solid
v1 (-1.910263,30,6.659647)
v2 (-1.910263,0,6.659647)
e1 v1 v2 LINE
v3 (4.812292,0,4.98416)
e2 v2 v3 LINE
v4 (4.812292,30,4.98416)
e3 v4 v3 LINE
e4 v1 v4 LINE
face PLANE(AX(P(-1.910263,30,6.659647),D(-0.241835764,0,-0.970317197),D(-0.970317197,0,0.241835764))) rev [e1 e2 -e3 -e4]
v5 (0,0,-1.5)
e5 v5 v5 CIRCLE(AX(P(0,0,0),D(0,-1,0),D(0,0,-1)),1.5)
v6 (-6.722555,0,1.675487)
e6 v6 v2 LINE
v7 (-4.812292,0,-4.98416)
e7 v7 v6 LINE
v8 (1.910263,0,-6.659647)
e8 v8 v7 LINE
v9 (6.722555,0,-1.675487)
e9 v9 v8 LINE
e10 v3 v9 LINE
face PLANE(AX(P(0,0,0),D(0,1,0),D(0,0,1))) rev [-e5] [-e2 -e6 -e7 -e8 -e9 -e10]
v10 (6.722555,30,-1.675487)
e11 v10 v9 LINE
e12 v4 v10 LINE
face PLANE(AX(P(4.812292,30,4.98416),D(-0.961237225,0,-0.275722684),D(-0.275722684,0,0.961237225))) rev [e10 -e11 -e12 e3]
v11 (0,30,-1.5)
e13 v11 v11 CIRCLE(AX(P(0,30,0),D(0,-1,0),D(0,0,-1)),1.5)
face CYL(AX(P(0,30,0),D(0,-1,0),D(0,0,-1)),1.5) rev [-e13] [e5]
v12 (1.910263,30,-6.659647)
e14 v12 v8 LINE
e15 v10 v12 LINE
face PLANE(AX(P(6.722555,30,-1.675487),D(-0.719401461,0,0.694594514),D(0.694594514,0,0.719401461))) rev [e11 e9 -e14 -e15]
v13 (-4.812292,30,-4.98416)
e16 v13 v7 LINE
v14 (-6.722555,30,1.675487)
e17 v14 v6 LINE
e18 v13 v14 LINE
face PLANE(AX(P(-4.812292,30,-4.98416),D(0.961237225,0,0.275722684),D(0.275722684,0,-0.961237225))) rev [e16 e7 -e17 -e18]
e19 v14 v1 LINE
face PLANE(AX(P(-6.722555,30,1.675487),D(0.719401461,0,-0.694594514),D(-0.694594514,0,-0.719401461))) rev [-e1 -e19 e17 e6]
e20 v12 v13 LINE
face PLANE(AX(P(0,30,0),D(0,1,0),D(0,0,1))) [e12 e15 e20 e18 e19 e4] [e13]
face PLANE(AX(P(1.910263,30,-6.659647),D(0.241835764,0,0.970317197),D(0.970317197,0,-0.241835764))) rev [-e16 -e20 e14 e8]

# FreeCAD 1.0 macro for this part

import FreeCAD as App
import Part
import Sketcher
from FreeCAD import Vector

doc = App.newDocument("Part")
body = doc.addObject("PartDesign::Body", "Body")

# Sketch on XZ plane
sketch1 = body.newObject("Sketcher::SketchObject", "Sketch")
sketch1.AttachmentSupport = (doc.getObject("XZ_Plane"), [""])
sketch1.MapMode = "FlatFace"
sketch1.addGeometry([
    Part.LineSegment(Vector(4.812292, 4.98416, 0), Vector(6.722555, -1.675487, 0)),  # 0
    Part.LineSegment(Vector(6.722555, -1.675487, 0), Vector(1.910263, -6.659647, 0)),  # 1
    Part.LineSegment(Vector(1.910263, -6.659647, 0), Vector(-4.812292, -4.98416, 0)),  # 2
    Part.LineSegment(Vector(-4.812292, -4.98416, 0), Vector(-6.722555, 1.675487, 0)),  # 3
    Part.LineSegment(Vector(-6.722555, 1.675487, 0), Vector(-1.910263, 6.659647, 0)),  # 4
    Part.LineSegment(Vector(-1.910263, 6.659647, 0), Vector(4.812292, 4.98416, 0)),  # 5
], False)
sketch1.addConstraint([
    Sketcher.Constraint("Coincident", 0, 2, 1, 1),
    Sketcher.Constraint("Coincident", 1, 2, 2, 1),
    Sketcher.Constraint("Coincident", 2, 2, 3, 1),
    Sketcher.Constraint("Coincident", 3, 2, 4, 1),
    Sketcher.Constraint("Coincident", 4, 2, 5, 1),
    Sketcher.Constraint("Coincident", 5, 2, 0, 1),
    Sketcher.Constraint("Symmetric", 0, 2, 3, 2, -1, 1),
    Sketcher.Constraint("Symmetric", 1, 2, 4, 2, -1, 1),
    Sketcher.Constraint("Symmetric", 2, 2, 5, 2, -1, 1),
    Sketcher.Constraint("Equal", 0, 1),
    Sketcher.Constraint("Equal", 1, 2),
    Sketcher.Constraint("DistanceX", 2, 2, -1, 1, 4.812292),
    Sketcher.Constraint("DistanceY", 2, 2, -1, 1, 4.98416),
    Sketcher.Constraint("DistanceX", 1, 2, 0, 2, 4.812292),
    Sketcher.Constraint("DistanceY", 1, 2, 0, 2, 4.98416),
])
pad1 = body.newObject("PartDesign::Pad", "Pad")
pad1.Profile = sketch1
pad1.Length = 30
pad1.Reversed = True

# Sketch on XZ plane
sketch2 = body.newObject("Sketcher::SketchObject", "Sketch001")
sketch2.AttachmentSupport = (doc.getObject("XZ_Plane"), [""])
sketch2.MapMode = "FlatFace"
sketch2.addGeometry(Part.Circle(Vector(0, 0, 0), Vector(0, 0, 1), 1.5), False)
sketch2.addConstraint([
    Sketcher.Constraint("Coincident", 0, 3, -1, 1),
    Sketcher.Constraint("Diameter", 0, 3.0),
])
pocket1 = body.newObject("PartDesign::Pocket", "Pocket")
pocket1.Profile = sketch2
pocket1.Length = 30

doc.recompute()
